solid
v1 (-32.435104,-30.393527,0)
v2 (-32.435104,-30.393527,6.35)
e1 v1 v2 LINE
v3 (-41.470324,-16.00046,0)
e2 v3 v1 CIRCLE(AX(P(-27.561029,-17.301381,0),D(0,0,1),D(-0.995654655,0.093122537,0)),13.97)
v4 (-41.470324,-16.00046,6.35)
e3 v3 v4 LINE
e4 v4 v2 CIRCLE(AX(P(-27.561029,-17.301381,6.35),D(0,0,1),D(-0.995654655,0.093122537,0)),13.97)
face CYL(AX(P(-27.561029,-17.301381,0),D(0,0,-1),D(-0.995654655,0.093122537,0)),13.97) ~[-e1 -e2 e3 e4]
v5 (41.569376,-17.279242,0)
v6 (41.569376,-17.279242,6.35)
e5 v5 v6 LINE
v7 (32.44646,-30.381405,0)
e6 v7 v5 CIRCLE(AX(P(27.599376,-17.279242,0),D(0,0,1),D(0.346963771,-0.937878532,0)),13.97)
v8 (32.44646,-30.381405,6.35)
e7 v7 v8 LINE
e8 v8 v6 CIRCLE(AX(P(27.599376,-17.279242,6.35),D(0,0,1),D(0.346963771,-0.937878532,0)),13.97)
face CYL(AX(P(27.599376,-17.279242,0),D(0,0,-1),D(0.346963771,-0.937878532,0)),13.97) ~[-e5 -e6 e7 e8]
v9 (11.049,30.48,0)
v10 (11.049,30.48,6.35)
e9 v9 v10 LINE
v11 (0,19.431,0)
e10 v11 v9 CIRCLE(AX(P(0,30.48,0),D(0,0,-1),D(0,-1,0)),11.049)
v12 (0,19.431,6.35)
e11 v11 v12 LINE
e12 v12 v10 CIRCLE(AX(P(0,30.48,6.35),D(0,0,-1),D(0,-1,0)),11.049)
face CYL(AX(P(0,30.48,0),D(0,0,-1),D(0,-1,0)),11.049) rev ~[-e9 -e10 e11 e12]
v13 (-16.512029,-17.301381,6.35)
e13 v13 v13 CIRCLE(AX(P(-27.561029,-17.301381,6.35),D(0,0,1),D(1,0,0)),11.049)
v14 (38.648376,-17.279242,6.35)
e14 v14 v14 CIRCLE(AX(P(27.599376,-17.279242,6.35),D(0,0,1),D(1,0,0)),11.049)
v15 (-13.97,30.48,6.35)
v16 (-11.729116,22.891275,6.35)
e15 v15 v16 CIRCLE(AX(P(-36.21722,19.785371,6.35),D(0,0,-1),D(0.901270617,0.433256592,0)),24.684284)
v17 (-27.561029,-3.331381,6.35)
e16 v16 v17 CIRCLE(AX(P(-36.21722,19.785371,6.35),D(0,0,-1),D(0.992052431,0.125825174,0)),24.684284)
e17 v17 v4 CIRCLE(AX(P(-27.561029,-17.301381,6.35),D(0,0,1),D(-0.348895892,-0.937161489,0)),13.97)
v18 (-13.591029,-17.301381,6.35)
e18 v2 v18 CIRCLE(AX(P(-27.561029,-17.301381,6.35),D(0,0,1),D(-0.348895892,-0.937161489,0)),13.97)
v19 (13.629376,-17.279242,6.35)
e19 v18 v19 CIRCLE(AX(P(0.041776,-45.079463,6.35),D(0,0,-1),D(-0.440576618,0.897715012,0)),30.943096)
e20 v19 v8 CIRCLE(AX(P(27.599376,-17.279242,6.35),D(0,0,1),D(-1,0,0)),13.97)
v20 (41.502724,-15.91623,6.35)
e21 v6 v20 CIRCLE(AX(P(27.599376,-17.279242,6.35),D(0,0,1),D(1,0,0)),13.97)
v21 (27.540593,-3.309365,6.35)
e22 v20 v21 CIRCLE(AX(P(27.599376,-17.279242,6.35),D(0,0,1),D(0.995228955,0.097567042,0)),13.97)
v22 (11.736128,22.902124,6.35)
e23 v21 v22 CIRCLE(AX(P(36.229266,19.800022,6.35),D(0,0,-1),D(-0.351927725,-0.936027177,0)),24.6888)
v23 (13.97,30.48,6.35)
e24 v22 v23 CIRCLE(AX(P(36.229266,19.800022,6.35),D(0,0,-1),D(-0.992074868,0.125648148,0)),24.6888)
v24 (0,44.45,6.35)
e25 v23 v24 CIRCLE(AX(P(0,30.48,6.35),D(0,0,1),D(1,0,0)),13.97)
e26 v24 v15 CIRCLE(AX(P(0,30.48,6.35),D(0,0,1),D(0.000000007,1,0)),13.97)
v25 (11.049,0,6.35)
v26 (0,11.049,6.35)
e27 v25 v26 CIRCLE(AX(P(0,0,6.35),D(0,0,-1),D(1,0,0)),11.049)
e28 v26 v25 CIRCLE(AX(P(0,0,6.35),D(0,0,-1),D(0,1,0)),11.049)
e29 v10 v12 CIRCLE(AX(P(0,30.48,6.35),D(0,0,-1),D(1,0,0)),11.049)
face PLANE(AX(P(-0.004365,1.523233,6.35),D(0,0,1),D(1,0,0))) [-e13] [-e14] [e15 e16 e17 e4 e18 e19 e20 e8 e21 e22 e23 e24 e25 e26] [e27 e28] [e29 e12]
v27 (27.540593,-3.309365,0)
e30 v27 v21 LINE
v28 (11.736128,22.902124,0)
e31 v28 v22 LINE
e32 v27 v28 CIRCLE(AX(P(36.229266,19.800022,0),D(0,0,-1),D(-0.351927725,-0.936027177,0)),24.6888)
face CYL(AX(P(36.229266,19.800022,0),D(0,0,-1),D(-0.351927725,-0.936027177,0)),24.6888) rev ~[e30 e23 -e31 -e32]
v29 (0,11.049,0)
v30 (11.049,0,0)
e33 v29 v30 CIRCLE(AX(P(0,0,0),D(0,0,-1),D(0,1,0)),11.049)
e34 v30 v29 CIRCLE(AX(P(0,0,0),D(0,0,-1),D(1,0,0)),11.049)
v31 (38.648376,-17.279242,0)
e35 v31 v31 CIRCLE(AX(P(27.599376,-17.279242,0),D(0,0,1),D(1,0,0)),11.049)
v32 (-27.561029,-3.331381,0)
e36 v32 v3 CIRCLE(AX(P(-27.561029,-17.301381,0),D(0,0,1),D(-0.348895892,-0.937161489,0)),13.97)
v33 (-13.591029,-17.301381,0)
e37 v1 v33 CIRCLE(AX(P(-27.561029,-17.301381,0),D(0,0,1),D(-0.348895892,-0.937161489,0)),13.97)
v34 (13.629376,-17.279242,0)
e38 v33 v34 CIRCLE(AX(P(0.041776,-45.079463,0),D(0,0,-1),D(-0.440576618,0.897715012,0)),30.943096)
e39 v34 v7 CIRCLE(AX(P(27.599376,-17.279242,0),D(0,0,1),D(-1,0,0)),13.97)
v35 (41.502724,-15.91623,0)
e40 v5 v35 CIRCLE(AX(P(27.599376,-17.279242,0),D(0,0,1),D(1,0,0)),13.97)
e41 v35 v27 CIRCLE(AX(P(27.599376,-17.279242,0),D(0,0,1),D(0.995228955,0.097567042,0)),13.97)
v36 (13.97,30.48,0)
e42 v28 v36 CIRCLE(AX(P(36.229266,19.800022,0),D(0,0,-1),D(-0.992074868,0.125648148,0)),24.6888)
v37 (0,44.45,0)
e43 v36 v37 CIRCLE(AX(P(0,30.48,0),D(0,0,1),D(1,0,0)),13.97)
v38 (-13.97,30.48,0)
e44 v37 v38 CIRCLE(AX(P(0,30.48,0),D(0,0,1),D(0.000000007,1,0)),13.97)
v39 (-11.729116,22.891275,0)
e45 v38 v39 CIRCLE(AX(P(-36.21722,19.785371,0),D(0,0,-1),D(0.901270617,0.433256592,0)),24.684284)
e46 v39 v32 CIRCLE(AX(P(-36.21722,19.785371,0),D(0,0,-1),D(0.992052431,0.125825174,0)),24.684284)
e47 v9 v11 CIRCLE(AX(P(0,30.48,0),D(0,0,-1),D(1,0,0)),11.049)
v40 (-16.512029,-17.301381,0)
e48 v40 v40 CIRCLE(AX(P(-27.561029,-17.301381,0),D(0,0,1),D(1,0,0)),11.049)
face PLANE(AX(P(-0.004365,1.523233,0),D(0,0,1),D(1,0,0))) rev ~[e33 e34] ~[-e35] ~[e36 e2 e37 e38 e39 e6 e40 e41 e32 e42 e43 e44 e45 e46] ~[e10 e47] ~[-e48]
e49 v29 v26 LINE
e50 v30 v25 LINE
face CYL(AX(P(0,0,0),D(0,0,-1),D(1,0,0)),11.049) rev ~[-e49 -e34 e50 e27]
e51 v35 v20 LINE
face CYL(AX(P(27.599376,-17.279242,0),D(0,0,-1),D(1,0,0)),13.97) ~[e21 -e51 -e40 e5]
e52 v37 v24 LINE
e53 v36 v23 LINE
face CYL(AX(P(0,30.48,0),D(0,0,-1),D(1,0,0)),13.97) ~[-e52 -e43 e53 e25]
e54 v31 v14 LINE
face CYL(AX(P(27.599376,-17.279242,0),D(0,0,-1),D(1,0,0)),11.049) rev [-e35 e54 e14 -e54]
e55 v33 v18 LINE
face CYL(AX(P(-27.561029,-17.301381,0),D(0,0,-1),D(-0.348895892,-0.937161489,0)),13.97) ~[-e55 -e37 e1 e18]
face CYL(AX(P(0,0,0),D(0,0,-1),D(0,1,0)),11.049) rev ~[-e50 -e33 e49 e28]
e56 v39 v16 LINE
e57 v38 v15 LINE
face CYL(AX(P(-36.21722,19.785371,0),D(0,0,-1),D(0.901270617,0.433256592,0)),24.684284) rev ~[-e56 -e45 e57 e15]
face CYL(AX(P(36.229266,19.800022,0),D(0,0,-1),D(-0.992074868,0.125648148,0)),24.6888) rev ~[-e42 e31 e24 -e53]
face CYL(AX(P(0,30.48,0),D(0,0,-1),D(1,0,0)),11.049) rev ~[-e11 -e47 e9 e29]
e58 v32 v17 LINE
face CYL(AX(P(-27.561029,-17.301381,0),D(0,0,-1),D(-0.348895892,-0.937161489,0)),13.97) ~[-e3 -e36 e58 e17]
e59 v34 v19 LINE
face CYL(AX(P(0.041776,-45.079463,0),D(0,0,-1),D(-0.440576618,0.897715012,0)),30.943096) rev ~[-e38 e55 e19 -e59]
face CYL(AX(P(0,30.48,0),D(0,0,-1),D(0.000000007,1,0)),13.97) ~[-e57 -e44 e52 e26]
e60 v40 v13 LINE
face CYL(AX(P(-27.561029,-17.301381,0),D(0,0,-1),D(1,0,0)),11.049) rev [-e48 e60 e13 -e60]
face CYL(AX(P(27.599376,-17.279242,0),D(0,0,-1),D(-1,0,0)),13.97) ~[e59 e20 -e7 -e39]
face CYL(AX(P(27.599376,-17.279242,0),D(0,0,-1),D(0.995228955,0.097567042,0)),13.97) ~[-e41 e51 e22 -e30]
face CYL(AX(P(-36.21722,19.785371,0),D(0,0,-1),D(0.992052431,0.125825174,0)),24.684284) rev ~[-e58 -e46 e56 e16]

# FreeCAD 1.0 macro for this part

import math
import FreeCAD as App
import Part
import Sketcher
from FreeCAD import Vector
Q = App.Units.Quantity

doc = App.newDocument("Part")
params = doc.addObject("Spreadsheet::Sheet", "Params")
for row, (alias, value) in enumerate([
    ("sketch1_diameter", "0.87 in"),
    ("sketch1_radius", "0.55 in"),
    ("sketch1_radius2", "0.972 in"),
    ("pad1_length", "0.25 in"),
], start=1):
    params.set(f"A{row}", alias)
    params.set(f"B{row}", "=" + value)
    params.setAlias(f"B{row}", alias)

body = doc.addObject("PartDesign::Body", "Body")

# Sketch on XY plane
sketch1 = body.newObject("Sketcher::SketchObject", "Sketch")
sketch1.AttachmentSupport = (doc.getObject("XY_Plane"), [""])
sketch1.MapMode = "FlatFace"
sketch1.addGeometry([
    Part.ArcOfCircle(Part.Circle(Vector(0.041776, -45.079463, 0), Vector(0, 0, 1), 30.943096), math.radians(63.952525), math.radians(116.140677)),  # 0
    Part.ArcOfCircle(Part.Circle(Vector(27.599376, -17.279242, 0), Vector(0, 0, 1), 13.97), math.radians(180), math.radians(290.301718)),  # 1
    Part.ArcOfCircle(Part.Circle(Vector(27.599376, -17.279242, 0), Vector(0, 0, 1), 13.97), math.radians(-69.698282), math.radians(0)),  # 2
    Part.ArcOfCircle(Part.Circle(Vector(27.599376, -17.279242, 0), Vector(0, 0, 1), 13.97), math.radians(0), math.radians(5.599087)),  # 3
    Part.ArcOfCircle(Part.Circle(Vector(27.599376, -17.279242, 0), Vector(0, 0, 1), 13.97), math.radians(5.599087), math.radians(90.24109)),  # 4
    Part.ArcOfCircle(Part.Circle(Vector(36.229266, 19.800022, 0), Vector(0, 0, 1), 24.6888), math.radians(172.781813), math.radians(249.394731)),  # 5
    Part.ArcOfCircle(Part.Circle(Vector(36.229266, 19.800022, 0), Vector(0, 0, 1), 24.6888), math.radians(154.368346), math.radians(172.781813)),  # 6
    Part.ArcOfCircle(Part.Circle(Vector(0, 30.48, 0), Vector(0, 0, 1), 13.97), math.radians(0), math.radians(90)),  # 7
    Part.ArcOfCircle(Part.Circle(Vector(0, 30.48, 0), Vector(0, 0, 1), 13.97), math.radians(90), math.radians(180)),  # 8
    Part.ArcOfCircle(Part.Circle(Vector(-36.21722, 19.785371, 0), Vector(0, 0, 1), 24.684284), math.radians(7.228411), math.radians(25.67441)),  # 9
    Part.ArcOfCircle(Part.Circle(Vector(-36.21722, 19.785371, 0), Vector(0, 0, 1), 24.684284), math.radians(-69.471319), math.radians(7.228411)),  # 10
    Part.ArcOfCircle(Part.Circle(Vector(-27.561029, -17.301381, 0), Vector(0, 0, 1), 13.97), math.radians(90), math.radians(174.65673)),  # 11
    Part.ArcOfCircle(Part.Circle(Vector(-27.561029, -17.301381, 0), Vector(0, 0, 1), 13.97), math.radians(174.65673), math.radians(249.580202)),  # 12
    Part.ArcOfCircle(Part.Circle(Vector(-27.561029, -17.301381, 0), Vector(0, 0, 1), 13.97), math.radians(-110.419798), math.radians(0)),  # 13
    Part.Circle(Vector(-27.561029, -17.301381, 0), Vector(0, 0, 1), 11.049),  # 14
    Part.ArcOfCircle(Part.Circle(Vector(0, 0, 0), Vector(0, 0, 1), 11.049), math.radians(0), math.radians(90)),  # 15
    Part.ArcOfCircle(Part.Circle(Vector(0, 0, 0), Vector(0, 0, 1), 11.049), math.radians(90), math.radians(360)),  # 16
    Part.Circle(Vector(27.599376, -17.279242, 0), Vector(0, 0, 1), 11.049),  # 17
    Part.ArcOfCircle(Part.Circle(Vector(0, 30.48, 0), Vector(0, 0, 1), 11.049), math.radians(0), math.radians(270)),  # 18
    Part.ArcOfCircle(Part.Circle(Vector(0, 30.48, 0), Vector(0, 0, 1), 11.049), math.radians(-90), math.radians(0)),  # 19
], False)
sketch1.addConstraint([
    Sketcher.Constraint("Coincident", 0, 1, 1, 1),
    Sketcher.Constraint("Tangent", 1, 2, 2, 1),
    Sketcher.Constraint("Tangent", 2, 2, 3, 1),
    Sketcher.Constraint("Tangent", 3, 2, 4, 1),
    Sketcher.Constraint("Coincident", 4, 2, 5, 2),
    Sketcher.Constraint("Tangent", 5, 1, 6, 2),
    Sketcher.Constraint("Coincident", 6, 1, 7, 1),
    Sketcher.Constraint("Tangent", 7, 2, 8, 1),
    Sketcher.Constraint("Coincident", 8, 2, 9, 2),
    Sketcher.Constraint("Tangent", 9, 1, 10, 2),
    Sketcher.Constraint("Coincident", 10, 1, 11, 1),
    Sketcher.Constraint("Tangent", 11, 2, 12, 1),
    Sketcher.Constraint("Tangent", 12, 2, 13, 1),
    Sketcher.Constraint("Coincident", 13, 2, 0, 2),
    Sketcher.Constraint("Tangent", 15, 1, 16, 2),
    Sketcher.Constraint("Coincident", 16, 1, 15, 2),
    Sketcher.Constraint("Tangent", 18, 1, 19, 2),
    Sketcher.Constraint("Coincident", 19, 1, 18, 2),
    Sketcher.Constraint("Coincident", 15, 3, -1, 1),
    Sketcher.Constraint("Coincident", 3, 3, 1, 3),
    Sketcher.Constraint("Coincident", 13, 3, 11, 3),
    Sketcher.Constraint("Coincident", 14, 3, 11, 3),
    Sketcher.Constraint("Coincident", 17, 3, 1, 3),
    Sketcher.Constraint("Coincident", 18, 3, 7, 3),
    Sketcher.Constraint("Equal", 3, 4),
    Sketcher.Constraint("Equal", 5, 6),
    Sketcher.Constraint("Equal", 4, 7),
    Sketcher.Constraint("Equal", 7, 8),
    Sketcher.Constraint("Equal", 9, 10),
    Sketcher.Constraint("Equal", 8, 11),
    Sketcher.Constraint("Equal", 14, 15),
    Sketcher.Constraint("Equal", 16, 17),
    Sketcher.Constraint("Equal", 17, 18),
    Sketcher.Constraint("Symmetric", 6, 1, 8, 2, -2),
    Sketcher.Constraint("PointOnObject", 7, 2, -2),
    Sketcher.Constraint("PointOnObject", 15, 1, -1),
    Sketcher.Constraint("PointOnObject", 16, 1, -2),
    Sketcher.Constraint("PointOnObject", 19, 1, -2),
    Sketcher.Constraint("Horizontal", 17, 3, 0, 1),
    Sketcher.Constraint("Horizontal", 0, 1, 2, 2),
    Sketcher.Constraint("Horizontal", 19, 3, 6, 1),
    Sketcher.Constraint("Horizontal", 14, 3, 13, 2),
    Sketcher.Constraint("Horizontal", 8, 2, 18, 1),
    Sketcher.Constraint("Vertical", 14, 3, 10, 1),
    Sketcher.Constraint("Diameter", 14, Q("0.87 in")),
    Sketcher.Constraint("Radius", 1, Q("0.55 in")),
    Sketcher.Constraint("Radius", 5, Q("0.972 in")),
    Sketcher.Constraint("DistanceY", -1, 1, 7, 3, Q("1.2 in")),
    Sketcher.Constraint("Radius", 0, 30.943096),
    Sketcher.Constraint("Radius", 9, 24.684284),
    Sketcher.Constraint("DistanceX", 0, 3, 1, 3, 27.5576),
    Sketcher.Constraint("DistanceY", 6, 3, 5, 1, 3.102102),
    Sketcher.Constraint("DistanceY", 1, 3, -1, 1, 17.279242),
    Sketcher.Constraint("DistanceX", 9, 3, -1, 1, 36.21722),
    Sketcher.Constraint("DistanceX", 11, 3, -1, 1, 27.561029),
    Sketcher.Constraint("DistanceX", -1, 1, 1, 2, 32.44646),
    Sketcher.Constraint("DistanceY", 3, 2, -1, 1, 15.91623),
    Sketcher.Constraint("DistanceX", -1, 1, 5, 1, 11.736128),
    Sketcher.Constraint("DistanceY", 11, 2, -1, 1, 16.00046),
    Sketcher.Constraint("DistanceX", 11, 2, 12, 2, 9.03522),
    Sketcher.Constraint("DistanceX", 9, 1, -1, 1, 11.729116),
])
sketch1.setExpression("Constraints[44]", "Params.sketch1_diameter")
sketch1.setExpression("Constraints[45]", "Params.sketch1_radius")
sketch1.setExpression("Constraints[46]", "Params.sketch1_radius2")
pad1 = body.newObject("PartDesign::Pad", "Pad")
pad1.Profile = sketch1
pad1.setExpression("Length", "Params.pad1_length")

doc.recompute()
